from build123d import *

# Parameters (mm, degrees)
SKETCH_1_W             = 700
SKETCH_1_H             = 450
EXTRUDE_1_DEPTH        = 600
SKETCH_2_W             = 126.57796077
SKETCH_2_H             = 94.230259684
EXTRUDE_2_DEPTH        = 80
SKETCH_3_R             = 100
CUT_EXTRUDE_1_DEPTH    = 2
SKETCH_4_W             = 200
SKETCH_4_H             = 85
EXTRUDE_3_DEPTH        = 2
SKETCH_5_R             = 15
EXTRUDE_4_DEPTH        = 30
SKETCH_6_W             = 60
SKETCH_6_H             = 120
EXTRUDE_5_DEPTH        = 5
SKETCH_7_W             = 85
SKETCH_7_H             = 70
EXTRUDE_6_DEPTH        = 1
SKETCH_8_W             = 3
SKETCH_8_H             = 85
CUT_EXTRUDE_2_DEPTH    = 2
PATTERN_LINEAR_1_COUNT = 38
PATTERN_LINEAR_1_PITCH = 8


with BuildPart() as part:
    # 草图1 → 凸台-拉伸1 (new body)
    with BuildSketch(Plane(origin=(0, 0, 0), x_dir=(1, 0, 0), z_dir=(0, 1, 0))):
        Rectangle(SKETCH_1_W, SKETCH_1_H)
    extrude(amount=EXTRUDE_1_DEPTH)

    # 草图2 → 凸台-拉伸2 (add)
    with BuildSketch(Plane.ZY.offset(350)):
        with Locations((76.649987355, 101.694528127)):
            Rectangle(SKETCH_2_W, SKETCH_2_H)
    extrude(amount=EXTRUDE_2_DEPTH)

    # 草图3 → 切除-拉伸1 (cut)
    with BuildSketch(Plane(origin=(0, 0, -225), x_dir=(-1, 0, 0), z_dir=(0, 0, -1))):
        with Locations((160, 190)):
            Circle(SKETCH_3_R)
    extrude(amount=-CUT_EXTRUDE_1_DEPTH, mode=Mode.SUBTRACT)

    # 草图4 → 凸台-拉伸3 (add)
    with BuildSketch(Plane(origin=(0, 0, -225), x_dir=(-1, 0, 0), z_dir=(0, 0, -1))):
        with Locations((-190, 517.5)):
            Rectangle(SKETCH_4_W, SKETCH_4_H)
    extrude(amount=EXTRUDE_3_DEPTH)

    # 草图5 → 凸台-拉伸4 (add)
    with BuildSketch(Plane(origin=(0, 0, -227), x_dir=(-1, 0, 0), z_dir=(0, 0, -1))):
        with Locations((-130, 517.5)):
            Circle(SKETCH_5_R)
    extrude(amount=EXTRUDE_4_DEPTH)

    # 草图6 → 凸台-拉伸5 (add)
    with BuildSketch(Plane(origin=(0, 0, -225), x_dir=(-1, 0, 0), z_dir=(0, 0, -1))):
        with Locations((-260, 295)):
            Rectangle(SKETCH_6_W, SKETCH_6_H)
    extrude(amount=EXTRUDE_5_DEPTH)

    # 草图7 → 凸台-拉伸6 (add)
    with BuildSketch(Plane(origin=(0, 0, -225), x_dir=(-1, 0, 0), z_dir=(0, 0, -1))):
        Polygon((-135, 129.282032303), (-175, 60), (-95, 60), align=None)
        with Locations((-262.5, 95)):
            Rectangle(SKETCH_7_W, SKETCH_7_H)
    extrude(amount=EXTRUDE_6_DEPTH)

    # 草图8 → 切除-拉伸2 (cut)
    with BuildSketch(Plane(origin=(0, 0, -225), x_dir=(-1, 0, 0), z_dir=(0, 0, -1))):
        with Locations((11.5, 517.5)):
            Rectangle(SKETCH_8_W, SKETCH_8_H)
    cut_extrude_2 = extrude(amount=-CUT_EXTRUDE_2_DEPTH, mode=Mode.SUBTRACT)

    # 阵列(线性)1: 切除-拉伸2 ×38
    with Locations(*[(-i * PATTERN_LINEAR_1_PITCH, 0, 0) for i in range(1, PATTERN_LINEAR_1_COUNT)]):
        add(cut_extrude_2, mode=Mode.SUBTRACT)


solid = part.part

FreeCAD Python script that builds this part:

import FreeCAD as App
import Part
import Sketcher

V = App.Vector
Q = App.Units.Quantity


def add_polygon(sketch, points):
    """Adds a closed chain of lines whose ends are joined by coincident constraints."""
    first, n = sketch.GeometryCount, len(points)
    for a, b in zip(points, points[1:] + points[:1]):
        sketch.addGeometry(Part.LineSegment(App.Vector(*a, 0), App.Vector(*b, 0)), False)
    for i in range(n):
        sketch.addConstraint(Sketcher.Constraint("Coincident", first + i, 2, first + (i + 1) % n, 1))

doc = App.newDocument("Part")
body = doc.addObject("PartDesign::Body", "Body")

sketch1 = body.newObject("Sketcher::SketchObject", "Sketch")
sketch1.AttachmentSupport = (doc.getObject("XZ_Plane"), [""])
sketch1.MapMode = "FlatFace"
add_polygon(sketch1, [(-350, -225), (-350, 225), (350, 225), (350, -225)])
sketch1.addConstraint([
    Sketcher.Constraint("Vertical", 0),
    Sketcher.Constraint("Horizontal", 1),
    Sketcher.Constraint("Vertical", 2),
    Sketcher.Constraint("Horizontal", 3),
    Sketcher.Constraint("Symmetric", 0, 2, 2, 2, -1, 1),
    Sketcher.Constraint("DistanceX", 1, 1, 1, 2, Q("700 mm")),
    Sketcher.Constraint("DistanceY", 0, 1, 0, 2, Q("450 mm")),
])
pad1 = body.newObject("PartDesign::Pad", "Pad")
pad1.Profile = sketch1
pad1.Length = 600
pad1.Reversed = True

sketch2 = body.newObject("Sketcher::SketchObject", "Sketch001")
sketch2.AttachmentSupport = (doc.getObject("YZ_Plane"), [""])
sketch2.MapMode = "FlatFace"
sketch2.AttachmentOffset = App.Placement(V(0, 0, -350), App.Rotation())
add_polygon(sketch2, [(148.809658, 13.361007), (54.579398, 13.361007), (54.579398, 139.938968), (148.809658, 139.938968)])
sketch2.addConstraint([
    Sketcher.Constraint("Horizontal", 0),
    Sketcher.Constraint("Vertical", 1),
    Sketcher.Constraint("Horizontal", 2),
    Sketcher.Constraint("Vertical", 3),
    Sketcher.Constraint("DistanceX", 0, 2, 0, 1, Q("94.23026 mm")),
    Sketcher.Constraint("DistanceY", 1, 1, 1, 2, Q("126.577961 mm")),
    Sketcher.Constraint("DistanceX", -1, 1, 0, 2, Q("54.579398 mm")),
    Sketcher.Constraint("DistanceY", -1, 1, 0, 2, Q("13.361007 mm")),
])
pad2 = body.newObject("PartDesign::Pad", "Pad001")
pad2.Profile = sketch2
pad2.Length = 80
pad2.Reversed = True

sketch3 = body.newObject("Sketcher::SketchObject", "Sketch002")
sketch3.AttachmentSupport = (doc.getObject("XY_Plane"), [""])
sketch3.MapMode = "FlatFace"
sketch3.AttachmentOffset = App.Placement(V(0, 0, -225), App.Rotation())
sketch3.addGeometry(Part.Circle(V(-160, 190, 0), V(0, 0, 1), 100), False)
sketch3.addConstraint([
    Sketcher.Constraint("Diameter", 0, Q("200 mm")),
    Sketcher.Constraint("DistanceX", 0, 3, -1, 1, Q("160 mm")),
    Sketcher.Constraint("DistanceY", -1, 1, 0, 3, Q("190 mm")),
])
pocket1 = body.newObject("PartDesign::Pocket", "Pocket")
pocket1.Profile = sketch3
pocket1.Length = 2
pocket1.Reversed = True

sketch4 = body.newObject("Sketcher::SketchObject", "Sketch003")
sketch4.AttachmentSupport = (doc.getObject("XY_Plane"), [""])
sketch4.MapMode = "FlatFace"
sketch4.AttachmentOffset = App.Placement(V(0, 0, -225), App.Rotation())
add_polygon(sketch4, [(290, 560), (290, 475), (90, 475), (90, 560)])
sketch4.addConstraint([
    Sketcher.Constraint("Vertical", 0),
    Sketcher.Constraint("Horizontal", 1),
    Sketcher.Constraint("Vertical", 2),
    Sketcher.Constraint("Horizontal", 3),
    Sketcher.Constraint("DistanceX", 1, 2, 1, 1, Q("200 mm")),
    Sketcher.Constraint("DistanceY", 0, 2, 0, 1, Q("85 mm")),
    Sketcher.Constraint("DistanceX", -1, 1, 0, 2, Q("290 mm")),
    Sketcher.Constraint("DistanceY", -1, 1, 0, 2, Q("475 mm")),
])
pad3 = body.newObject("PartDesign::Pad", "Pad002")
pad3.Profile = sketch4
pad3.Length = 2
pad3.Reversed = True

sketch5 = body.newObject("Sketcher::SketchObject", "Sketch004")
sketch5.AttachmentSupport = (doc.getObject("XY_Plane"), [""])
sketch5.MapMode = "FlatFace"
sketch5.AttachmentOffset = App.Placement(V(0, 0, -227), App.Rotation())
sketch5.addGeometry(Part.Circle(V(130, 517.5, 0), V(0, 0, 1), 15), False)
sketch5.addConstraint([
    Sketcher.Constraint("Diameter", 0, Q("30 mm")),
    Sketcher.Constraint("DistanceX", -1, 1, 0, 3, Q("130 mm")),
    Sketcher.Constraint("DistanceY", -1, 1, 0, 3, Q("517.5 mm")),
])
pad4 = body.newObject("PartDesign::Pad", "Pad003")
pad4.Profile = sketch5
pad4.Length = 30
pad4.Reversed = True

sketch6 = body.newObject("Sketcher::SketchObject", "Sketch005")
sketch6.AttachmentSupport = (doc.getObject("XY_Plane"), [""])
sketch6.MapMode = "FlatFace"
sketch6.AttachmentOffset = App.Placement(V(0, 0, -225), App.Rotation())
add_polygon(sketch6, [(290, 355), (290, 235), (230, 235), (230, 355)])
sketch6.addConstraint([
    Sketcher.Constraint("Vertical", 0),
    Sketcher.Constraint("Horizontal", 1),
    Sketcher.Constraint("Vertical", 2),
    Sketcher.Constraint("Horizontal", 3),
    Sketcher.Constraint("DistanceX", 1, 2, 1, 1, Q("60 mm")),
    Sketcher.Constraint("DistanceY", 0, 2, 0, 1, Q("120 mm")),
    Sketcher.Constraint("DistanceX", -1, 1, 0, 2, Q("290 mm")),
    Sketcher.Constraint("DistanceY", -1, 1, 0, 2, Q("235 mm")),
])
pad5 = body.newObject("PartDesign::Pad", "Pad004")
pad5.Profile = sketch6
pad5.Length = 5
pad5.Reversed = True

sketch7 = body.newObject("Sketcher::SketchObject", "Sketch006")
sketch7.AttachmentSupport = (doc.getObject("XY_Plane"), [""])
sketch7.MapMode = "FlatFace"
sketch7.AttachmentOffset = App.Placement(V(0, 0, -225), App.Rotation())
add_polygon(sketch7, [(135, 129.282032), (175, 60), (95, 60)])
add_polygon(sketch7, [(305, 130), (305, 60), (220, 60), (220, 130)])
sketch7.addConstraint([
    Sketcher.Constraint("Horizontal", 1),
    Sketcher.Constraint("Vertical", 3),
    Sketcher.Constraint("Horizontal", 4),
    Sketcher.Constraint("Vertical", 5),
    Sketcher.Constraint("Horizontal", 6),
    Sketcher.Constraint("Horizontal", 1, 2, 3, 2),
    Sketcher.Constraint("Equal", 0, 2),
    Sketcher.Constraint("DistanceX", 1, 2, 1, 1, Q("80 mm")),
    Sketcher.Constraint("DistanceX", 4, 2, 4, 1, Q("85 mm")),
    Sketcher.Constraint("DistanceY", 3, 2, 3, 1, Q("70 mm")),
    Sketcher.Constraint("Angle", 0, Q("-60 deg")),
    Sketcher.Constraint("DistanceX", -1, 1, 0, 2, Q("175 mm")),
    Sketcher.Constraint("DistanceY", -1, 1, 0, 2, Q("60 mm")),
    Sketcher.Constraint("DistanceX", -1, 1, 3, 2, Q("305 mm")),
])
pad6 = body.newObject("PartDesign::Pad", "Pad005")
pad6.Profile = sketch7
pad6.Length = 1
pad6.Reversed = True

sketch8 = body.newObject("Sketcher::SketchObject", "Sketch007")
sketch8.AttachmentSupport = (doc.getObject("XY_Plane"), [""])
sketch8.MapMode = "FlatFace"
sketch8.AttachmentOffset = App.Placement(V(0, 0, -225), App.Rotation())
add_polygon(sketch8, [(-10, 560), (-10, 475), (-13, 475), (-13, 560)])
sketch8.addConstraint([
    Sketcher.Constraint("Vertical", 0),
    Sketcher.Constraint("Horizontal", 1),
    Sketcher.Constraint("Vertical", 2),
    Sketcher.Constraint("Horizontal", 3),
    Sketcher.Constraint("DistanceX", 1, 2, 1, 1, Q("3 mm")),
    Sketcher.Constraint("DistanceY", 0, 2, 0, 1, Q("85 mm")),
    Sketcher.Constraint("DistanceX", 0, 2, -1, 1, Q("10 mm")),
    Sketcher.Constraint("DistanceY", -1, 1, 0, 2, Q("475 mm")),
])
pocket2 = body.newObject("PartDesign::Pocket", "Pocket001")
pocket2.Profile = sketch8
pocket2.Length = 2
pocket2.Reversed = True
doc.recompute()

linearpattern = body.newObject("PartDesign::LinearPattern", "LinearPattern")
linearpattern.Originals = [pocket2]
linearpattern.Direction = (doc.getObject("X_Axis"), [""])
linearpattern.Mode = "offset"
linearpattern.Offset = 8
linearpattern.Occurrences = 38
linearpattern.Reversed = True
body.Tip = linearpattern

doc.recompute()
